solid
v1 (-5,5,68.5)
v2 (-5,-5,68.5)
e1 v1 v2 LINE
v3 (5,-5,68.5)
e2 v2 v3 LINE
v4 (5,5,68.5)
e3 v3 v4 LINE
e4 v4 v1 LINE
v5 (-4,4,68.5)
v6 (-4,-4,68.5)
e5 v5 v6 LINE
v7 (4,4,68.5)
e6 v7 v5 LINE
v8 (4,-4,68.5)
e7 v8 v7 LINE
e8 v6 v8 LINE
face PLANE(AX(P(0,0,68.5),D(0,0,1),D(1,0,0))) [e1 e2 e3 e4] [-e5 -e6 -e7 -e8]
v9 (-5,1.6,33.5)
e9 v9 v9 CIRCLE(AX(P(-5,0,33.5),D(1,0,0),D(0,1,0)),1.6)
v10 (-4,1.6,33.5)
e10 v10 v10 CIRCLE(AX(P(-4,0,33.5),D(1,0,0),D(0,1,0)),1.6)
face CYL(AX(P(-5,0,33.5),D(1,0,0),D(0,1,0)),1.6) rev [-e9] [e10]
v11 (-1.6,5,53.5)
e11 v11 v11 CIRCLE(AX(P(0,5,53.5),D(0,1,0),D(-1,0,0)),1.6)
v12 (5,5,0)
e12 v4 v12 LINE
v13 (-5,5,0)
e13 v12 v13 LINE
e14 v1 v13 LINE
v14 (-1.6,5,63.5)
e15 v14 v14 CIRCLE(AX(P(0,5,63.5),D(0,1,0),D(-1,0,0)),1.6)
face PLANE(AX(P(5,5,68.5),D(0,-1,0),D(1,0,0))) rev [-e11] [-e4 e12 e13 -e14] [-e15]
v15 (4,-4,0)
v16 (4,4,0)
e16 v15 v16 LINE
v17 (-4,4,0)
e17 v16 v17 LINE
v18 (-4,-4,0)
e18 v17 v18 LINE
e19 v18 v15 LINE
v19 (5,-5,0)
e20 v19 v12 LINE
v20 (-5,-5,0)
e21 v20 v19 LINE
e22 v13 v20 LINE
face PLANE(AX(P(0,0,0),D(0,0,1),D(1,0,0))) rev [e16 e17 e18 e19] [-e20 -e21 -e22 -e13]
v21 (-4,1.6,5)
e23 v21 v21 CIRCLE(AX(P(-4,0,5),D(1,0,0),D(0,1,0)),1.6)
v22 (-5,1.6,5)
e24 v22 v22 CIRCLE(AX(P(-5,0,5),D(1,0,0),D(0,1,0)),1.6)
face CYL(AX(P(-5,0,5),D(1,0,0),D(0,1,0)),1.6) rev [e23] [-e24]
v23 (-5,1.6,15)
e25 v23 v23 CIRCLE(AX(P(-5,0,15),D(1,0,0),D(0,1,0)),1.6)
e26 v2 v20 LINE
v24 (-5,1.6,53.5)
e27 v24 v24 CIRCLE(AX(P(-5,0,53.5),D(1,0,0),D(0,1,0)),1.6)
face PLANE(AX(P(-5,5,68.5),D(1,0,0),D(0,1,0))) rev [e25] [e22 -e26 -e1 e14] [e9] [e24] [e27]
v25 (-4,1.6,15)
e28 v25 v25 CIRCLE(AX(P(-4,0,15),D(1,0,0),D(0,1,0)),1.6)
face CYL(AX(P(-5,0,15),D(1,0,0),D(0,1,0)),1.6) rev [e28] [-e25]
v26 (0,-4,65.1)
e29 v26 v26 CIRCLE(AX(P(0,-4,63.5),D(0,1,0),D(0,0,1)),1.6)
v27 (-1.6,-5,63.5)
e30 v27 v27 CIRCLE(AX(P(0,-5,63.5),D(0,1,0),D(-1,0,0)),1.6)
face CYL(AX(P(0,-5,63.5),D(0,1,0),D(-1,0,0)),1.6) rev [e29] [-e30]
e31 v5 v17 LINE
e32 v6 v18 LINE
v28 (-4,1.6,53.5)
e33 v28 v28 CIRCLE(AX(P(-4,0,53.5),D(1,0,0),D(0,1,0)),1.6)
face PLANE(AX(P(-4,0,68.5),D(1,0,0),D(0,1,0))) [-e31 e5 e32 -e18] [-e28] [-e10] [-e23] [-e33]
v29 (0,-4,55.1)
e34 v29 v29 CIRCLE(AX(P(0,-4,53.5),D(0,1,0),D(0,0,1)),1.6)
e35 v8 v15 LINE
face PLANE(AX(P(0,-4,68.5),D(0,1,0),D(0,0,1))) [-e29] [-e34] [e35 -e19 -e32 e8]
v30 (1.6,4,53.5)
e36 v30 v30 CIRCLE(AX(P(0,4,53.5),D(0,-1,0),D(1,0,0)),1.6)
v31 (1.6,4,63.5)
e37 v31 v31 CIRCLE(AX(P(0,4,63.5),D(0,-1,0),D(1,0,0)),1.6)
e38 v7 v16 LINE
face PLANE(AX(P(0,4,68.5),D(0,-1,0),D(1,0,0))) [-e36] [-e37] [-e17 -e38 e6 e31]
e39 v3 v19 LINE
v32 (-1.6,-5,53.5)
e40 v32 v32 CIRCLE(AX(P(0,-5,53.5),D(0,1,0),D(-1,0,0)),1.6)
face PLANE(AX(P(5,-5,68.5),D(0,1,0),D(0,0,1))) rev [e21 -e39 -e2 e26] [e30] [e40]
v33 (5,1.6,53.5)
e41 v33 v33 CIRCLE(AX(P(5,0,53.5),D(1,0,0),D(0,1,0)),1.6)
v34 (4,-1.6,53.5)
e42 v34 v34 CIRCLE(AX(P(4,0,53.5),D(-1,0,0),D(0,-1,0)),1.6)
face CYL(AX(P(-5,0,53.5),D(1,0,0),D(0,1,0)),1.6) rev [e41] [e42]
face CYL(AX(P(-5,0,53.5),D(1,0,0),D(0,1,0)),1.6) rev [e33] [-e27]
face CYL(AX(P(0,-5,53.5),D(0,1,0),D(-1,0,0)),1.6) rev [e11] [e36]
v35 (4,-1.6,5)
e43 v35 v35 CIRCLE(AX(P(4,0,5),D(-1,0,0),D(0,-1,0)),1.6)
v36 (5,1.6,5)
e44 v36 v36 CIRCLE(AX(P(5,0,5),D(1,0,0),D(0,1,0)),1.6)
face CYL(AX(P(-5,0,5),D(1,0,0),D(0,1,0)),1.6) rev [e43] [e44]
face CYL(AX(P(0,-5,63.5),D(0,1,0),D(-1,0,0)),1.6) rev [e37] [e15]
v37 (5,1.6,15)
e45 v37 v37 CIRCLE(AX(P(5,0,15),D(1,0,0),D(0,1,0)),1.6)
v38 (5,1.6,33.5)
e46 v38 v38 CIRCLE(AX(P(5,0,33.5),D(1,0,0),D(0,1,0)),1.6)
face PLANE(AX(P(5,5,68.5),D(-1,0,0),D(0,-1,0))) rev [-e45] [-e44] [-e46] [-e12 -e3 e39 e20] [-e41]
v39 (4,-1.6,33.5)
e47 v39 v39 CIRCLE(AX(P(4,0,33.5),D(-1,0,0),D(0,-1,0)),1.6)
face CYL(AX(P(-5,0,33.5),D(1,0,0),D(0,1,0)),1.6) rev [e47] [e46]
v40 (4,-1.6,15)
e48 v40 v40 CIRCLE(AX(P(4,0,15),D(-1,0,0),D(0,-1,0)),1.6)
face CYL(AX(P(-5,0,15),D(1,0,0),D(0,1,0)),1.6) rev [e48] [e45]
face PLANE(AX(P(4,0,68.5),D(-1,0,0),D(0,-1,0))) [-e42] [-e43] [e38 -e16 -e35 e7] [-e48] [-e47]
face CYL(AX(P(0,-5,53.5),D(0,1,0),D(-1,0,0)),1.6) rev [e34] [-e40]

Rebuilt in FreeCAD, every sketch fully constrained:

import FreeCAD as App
import Part
import Sketcher

doc = App.newDocument("Part")
body = doc.addObject("PartDesign::Body", "Body")

# Sketch on XY plane
sketch1 = doc.addObject("Sketcher::SketchObject", "Sketch")
body.addObject(sketch1)
sketch1.AttachmentSupport = (doc.XY_Plane, [""])
sketch1.MapMode = "FlatFace"
sketch1.addGeometry([
    Part.LineSegment(App.Vector(-5, 5, 0), App.Vector(-5, -5, 0)),  # 0
    Part.LineSegment(App.Vector(-5, -5, 0), App.Vector(5, -5, 0)),  # 1
    Part.LineSegment(App.Vector(5, -5, 0), App.Vector(5, 5, 0)),  # 2
    Part.LineSegment(App.Vector(5, 5, 0), App.Vector(-5, 5, 0)),  # 3
    Part.LineSegment(App.Vector(4, -4, 0), App.Vector(-4, -4, 0)),  # 4
    Part.LineSegment(App.Vector(-4, -4, 0), App.Vector(-4, 4, 0)),  # 5
    Part.LineSegment(App.Vector(-4, 4, 0), App.Vector(4, 4, 0)),  # 6
    Part.LineSegment(App.Vector(4, 4, 0), App.Vector(4, -4, 0)),  # 7
], False)
sketch1.addConstraint([
    Sketcher.Constraint("Coincident", 0, 2, 1, 1),
    Sketcher.Constraint("Coincident", 1, 2, 2, 1),
    Sketcher.Constraint("Coincident", 2, 2, 3, 1),
    Sketcher.Constraint("Coincident", 3, 2, 0, 1),
    Sketcher.Constraint("Coincident", 4, 2, 5, 1),
    Sketcher.Constraint("Coincident", 5, 2, 6, 1),
    Sketcher.Constraint("Coincident", 6, 2, 7, 1),
    Sketcher.Constraint("Coincident", 7, 2, 4, 1),
    Sketcher.Constraint("Vertical", 0),
    Sketcher.Constraint("Horizontal", 1),
    Sketcher.Constraint("Vertical", 2),
    Sketcher.Constraint("Horizontal", 3),
    Sketcher.Constraint("Horizontal", 4),
    Sketcher.Constraint("Vertical", 5),
    Sketcher.Constraint("Horizontal", 6),
    Sketcher.Constraint("Vertical", 7),
    Sketcher.Constraint("Symmetric", 0, 2, 2, 2, -1, 1),
    Sketcher.Constraint("Symmetric", 4, 2, 6, 2, -1, 1),
    Sketcher.Constraint("Equal", 3, 0),
    Sketcher.Constraint("Equal", 6, 5),
    Sketcher.Constraint("DistanceX", 1, 1, 1, 2, 10.0),
    Sketcher.Constraint("DistanceX", 4, 2, 4, 1, 8.0),
])
pad1 = doc.addObject("PartDesign::Pad", "Pad")
body.addObject(pad1)
pad1.Profile = sketch1
pad1.Length = 68.5

# Sketch on XZ plane
sketch2 = doc.addObject("Sketcher::SketchObject", "Sketch001")
body.addObject(sketch2)
sketch2.AttachmentSupport = (doc.XZ_Plane, [""])
sketch2.MapMode = "FlatFace"
sketch2.AttachmentOffset = App.Placement(App.Vector(0, 0, -5), App.Rotation())
sketch2.addGeometry([
    Part.Circle(App.Vector(0, 63.5, 0), App.Vector(0, 0, 1), 1.6),
    Part.Circle(App.Vector(0, 53.5, 0), App.Vector(0, 0, 1), 1.6),
], False)
sketch2.addConstraint([
    Sketcher.Constraint("Equal", 0, 1),
    Sketcher.Constraint("PointOnObject", 0, 3, -2),
    Sketcher.Constraint("PointOnObject", 1, 3, -2),
    Sketcher.Constraint("Diameter", 0, 3.2),
    Sketcher.Constraint("DistanceY", 1, 3, 0, 3, 10.0),
    Sketcher.Constraint("DistanceY", -1, 1, 0, 3, 63.5),
])
pocket1 = doc.addObject("PartDesign::Pocket", "Pocket")
body.addObject(pocket1)
pocket1.Profile = sketch2
pocket1.Type = "ThroughAll"
pocket1.Reversed = True

# Sketch on YZ plane
sketch3 = doc.addObject("Sketcher::SketchObject", "Sketch002")
body.addObject(sketch3)
sketch3.AttachmentSupport = (doc.YZ_Plane, [""])
sketch3.MapMode = "FlatFace"
sketch3.AttachmentOffset = App.Placement(App.Vector(0, 0, 5), App.Rotation())
sketch3.addGeometry([
    Part.Circle(App.Vector(0, 5, 0), App.Vector(0, 0, 1), 1.6),
    Part.Circle(App.Vector(0, 15, 0), App.Vector(0, 0, 1), 1.6),
], False)
sketch3.addConstraint([
    Sketcher.Constraint("Equal", 0, 1),
    Sketcher.Constraint("PointOnObject", 0, 3, -2),
    Sketcher.Constraint("PointOnObject", 1, 3, -2),
    Sketcher.Constraint("Diameter", 0, 3.2),
    Sketcher.Constraint("DistanceY", -1, 1, 0, 3, 5.0),
    Sketcher.Constraint("DistanceY", -1, 1, 1, 3, 15.0),
])
pocket2 = doc.addObject("PartDesign::Pocket", "Pocket001")
body.addObject(pocket2)
pocket2.Profile = sketch3
pocket2.Type = "ThroughAll"

# Sketch on YZ plane
sketch4 = doc.addObject("Sketcher::SketchObject", "Sketch003")
body.addObject(sketch4)
sketch4.AttachmentSupport = (doc.YZ_Plane, [""])
sketch4.MapMode = "FlatFace"
sketch4.AttachmentOffset = App.Placement(App.Vector(0, 0, 5), App.Rotation())
sketch4.addGeometry([
    Part.Circle(App.Vector(0, 53.5, 0), App.Vector(0, 0, 1), 1.6),
    Part.Circle(App.Vector(0, 33.5, 0), App.Vector(0, 0, 1), 1.6),
], False)
sketch4.addConstraint([
    Sketcher.Constraint("Equal", 0, 1),
    Sketcher.Constraint("PointOnObject", 0, 3, -2),
    Sketcher.Constraint("PointOnObject", 1, 3, -2),
    Sketcher.Constraint("Diameter", 0, 3.2),
    Sketcher.Constraint("DistanceY", 1, 3, 0, 3, 20.0),
    Sketcher.Constraint("DistanceY", -1, 1, 0, 3, 53.5),
])
pocket3 = doc.addObject("PartDesign::Pocket", "Pocket002")
body.addObject(pocket3)
pocket3.Profile = sketch4
pocket3.Type = "ThroughAll"

doc.recompute()
